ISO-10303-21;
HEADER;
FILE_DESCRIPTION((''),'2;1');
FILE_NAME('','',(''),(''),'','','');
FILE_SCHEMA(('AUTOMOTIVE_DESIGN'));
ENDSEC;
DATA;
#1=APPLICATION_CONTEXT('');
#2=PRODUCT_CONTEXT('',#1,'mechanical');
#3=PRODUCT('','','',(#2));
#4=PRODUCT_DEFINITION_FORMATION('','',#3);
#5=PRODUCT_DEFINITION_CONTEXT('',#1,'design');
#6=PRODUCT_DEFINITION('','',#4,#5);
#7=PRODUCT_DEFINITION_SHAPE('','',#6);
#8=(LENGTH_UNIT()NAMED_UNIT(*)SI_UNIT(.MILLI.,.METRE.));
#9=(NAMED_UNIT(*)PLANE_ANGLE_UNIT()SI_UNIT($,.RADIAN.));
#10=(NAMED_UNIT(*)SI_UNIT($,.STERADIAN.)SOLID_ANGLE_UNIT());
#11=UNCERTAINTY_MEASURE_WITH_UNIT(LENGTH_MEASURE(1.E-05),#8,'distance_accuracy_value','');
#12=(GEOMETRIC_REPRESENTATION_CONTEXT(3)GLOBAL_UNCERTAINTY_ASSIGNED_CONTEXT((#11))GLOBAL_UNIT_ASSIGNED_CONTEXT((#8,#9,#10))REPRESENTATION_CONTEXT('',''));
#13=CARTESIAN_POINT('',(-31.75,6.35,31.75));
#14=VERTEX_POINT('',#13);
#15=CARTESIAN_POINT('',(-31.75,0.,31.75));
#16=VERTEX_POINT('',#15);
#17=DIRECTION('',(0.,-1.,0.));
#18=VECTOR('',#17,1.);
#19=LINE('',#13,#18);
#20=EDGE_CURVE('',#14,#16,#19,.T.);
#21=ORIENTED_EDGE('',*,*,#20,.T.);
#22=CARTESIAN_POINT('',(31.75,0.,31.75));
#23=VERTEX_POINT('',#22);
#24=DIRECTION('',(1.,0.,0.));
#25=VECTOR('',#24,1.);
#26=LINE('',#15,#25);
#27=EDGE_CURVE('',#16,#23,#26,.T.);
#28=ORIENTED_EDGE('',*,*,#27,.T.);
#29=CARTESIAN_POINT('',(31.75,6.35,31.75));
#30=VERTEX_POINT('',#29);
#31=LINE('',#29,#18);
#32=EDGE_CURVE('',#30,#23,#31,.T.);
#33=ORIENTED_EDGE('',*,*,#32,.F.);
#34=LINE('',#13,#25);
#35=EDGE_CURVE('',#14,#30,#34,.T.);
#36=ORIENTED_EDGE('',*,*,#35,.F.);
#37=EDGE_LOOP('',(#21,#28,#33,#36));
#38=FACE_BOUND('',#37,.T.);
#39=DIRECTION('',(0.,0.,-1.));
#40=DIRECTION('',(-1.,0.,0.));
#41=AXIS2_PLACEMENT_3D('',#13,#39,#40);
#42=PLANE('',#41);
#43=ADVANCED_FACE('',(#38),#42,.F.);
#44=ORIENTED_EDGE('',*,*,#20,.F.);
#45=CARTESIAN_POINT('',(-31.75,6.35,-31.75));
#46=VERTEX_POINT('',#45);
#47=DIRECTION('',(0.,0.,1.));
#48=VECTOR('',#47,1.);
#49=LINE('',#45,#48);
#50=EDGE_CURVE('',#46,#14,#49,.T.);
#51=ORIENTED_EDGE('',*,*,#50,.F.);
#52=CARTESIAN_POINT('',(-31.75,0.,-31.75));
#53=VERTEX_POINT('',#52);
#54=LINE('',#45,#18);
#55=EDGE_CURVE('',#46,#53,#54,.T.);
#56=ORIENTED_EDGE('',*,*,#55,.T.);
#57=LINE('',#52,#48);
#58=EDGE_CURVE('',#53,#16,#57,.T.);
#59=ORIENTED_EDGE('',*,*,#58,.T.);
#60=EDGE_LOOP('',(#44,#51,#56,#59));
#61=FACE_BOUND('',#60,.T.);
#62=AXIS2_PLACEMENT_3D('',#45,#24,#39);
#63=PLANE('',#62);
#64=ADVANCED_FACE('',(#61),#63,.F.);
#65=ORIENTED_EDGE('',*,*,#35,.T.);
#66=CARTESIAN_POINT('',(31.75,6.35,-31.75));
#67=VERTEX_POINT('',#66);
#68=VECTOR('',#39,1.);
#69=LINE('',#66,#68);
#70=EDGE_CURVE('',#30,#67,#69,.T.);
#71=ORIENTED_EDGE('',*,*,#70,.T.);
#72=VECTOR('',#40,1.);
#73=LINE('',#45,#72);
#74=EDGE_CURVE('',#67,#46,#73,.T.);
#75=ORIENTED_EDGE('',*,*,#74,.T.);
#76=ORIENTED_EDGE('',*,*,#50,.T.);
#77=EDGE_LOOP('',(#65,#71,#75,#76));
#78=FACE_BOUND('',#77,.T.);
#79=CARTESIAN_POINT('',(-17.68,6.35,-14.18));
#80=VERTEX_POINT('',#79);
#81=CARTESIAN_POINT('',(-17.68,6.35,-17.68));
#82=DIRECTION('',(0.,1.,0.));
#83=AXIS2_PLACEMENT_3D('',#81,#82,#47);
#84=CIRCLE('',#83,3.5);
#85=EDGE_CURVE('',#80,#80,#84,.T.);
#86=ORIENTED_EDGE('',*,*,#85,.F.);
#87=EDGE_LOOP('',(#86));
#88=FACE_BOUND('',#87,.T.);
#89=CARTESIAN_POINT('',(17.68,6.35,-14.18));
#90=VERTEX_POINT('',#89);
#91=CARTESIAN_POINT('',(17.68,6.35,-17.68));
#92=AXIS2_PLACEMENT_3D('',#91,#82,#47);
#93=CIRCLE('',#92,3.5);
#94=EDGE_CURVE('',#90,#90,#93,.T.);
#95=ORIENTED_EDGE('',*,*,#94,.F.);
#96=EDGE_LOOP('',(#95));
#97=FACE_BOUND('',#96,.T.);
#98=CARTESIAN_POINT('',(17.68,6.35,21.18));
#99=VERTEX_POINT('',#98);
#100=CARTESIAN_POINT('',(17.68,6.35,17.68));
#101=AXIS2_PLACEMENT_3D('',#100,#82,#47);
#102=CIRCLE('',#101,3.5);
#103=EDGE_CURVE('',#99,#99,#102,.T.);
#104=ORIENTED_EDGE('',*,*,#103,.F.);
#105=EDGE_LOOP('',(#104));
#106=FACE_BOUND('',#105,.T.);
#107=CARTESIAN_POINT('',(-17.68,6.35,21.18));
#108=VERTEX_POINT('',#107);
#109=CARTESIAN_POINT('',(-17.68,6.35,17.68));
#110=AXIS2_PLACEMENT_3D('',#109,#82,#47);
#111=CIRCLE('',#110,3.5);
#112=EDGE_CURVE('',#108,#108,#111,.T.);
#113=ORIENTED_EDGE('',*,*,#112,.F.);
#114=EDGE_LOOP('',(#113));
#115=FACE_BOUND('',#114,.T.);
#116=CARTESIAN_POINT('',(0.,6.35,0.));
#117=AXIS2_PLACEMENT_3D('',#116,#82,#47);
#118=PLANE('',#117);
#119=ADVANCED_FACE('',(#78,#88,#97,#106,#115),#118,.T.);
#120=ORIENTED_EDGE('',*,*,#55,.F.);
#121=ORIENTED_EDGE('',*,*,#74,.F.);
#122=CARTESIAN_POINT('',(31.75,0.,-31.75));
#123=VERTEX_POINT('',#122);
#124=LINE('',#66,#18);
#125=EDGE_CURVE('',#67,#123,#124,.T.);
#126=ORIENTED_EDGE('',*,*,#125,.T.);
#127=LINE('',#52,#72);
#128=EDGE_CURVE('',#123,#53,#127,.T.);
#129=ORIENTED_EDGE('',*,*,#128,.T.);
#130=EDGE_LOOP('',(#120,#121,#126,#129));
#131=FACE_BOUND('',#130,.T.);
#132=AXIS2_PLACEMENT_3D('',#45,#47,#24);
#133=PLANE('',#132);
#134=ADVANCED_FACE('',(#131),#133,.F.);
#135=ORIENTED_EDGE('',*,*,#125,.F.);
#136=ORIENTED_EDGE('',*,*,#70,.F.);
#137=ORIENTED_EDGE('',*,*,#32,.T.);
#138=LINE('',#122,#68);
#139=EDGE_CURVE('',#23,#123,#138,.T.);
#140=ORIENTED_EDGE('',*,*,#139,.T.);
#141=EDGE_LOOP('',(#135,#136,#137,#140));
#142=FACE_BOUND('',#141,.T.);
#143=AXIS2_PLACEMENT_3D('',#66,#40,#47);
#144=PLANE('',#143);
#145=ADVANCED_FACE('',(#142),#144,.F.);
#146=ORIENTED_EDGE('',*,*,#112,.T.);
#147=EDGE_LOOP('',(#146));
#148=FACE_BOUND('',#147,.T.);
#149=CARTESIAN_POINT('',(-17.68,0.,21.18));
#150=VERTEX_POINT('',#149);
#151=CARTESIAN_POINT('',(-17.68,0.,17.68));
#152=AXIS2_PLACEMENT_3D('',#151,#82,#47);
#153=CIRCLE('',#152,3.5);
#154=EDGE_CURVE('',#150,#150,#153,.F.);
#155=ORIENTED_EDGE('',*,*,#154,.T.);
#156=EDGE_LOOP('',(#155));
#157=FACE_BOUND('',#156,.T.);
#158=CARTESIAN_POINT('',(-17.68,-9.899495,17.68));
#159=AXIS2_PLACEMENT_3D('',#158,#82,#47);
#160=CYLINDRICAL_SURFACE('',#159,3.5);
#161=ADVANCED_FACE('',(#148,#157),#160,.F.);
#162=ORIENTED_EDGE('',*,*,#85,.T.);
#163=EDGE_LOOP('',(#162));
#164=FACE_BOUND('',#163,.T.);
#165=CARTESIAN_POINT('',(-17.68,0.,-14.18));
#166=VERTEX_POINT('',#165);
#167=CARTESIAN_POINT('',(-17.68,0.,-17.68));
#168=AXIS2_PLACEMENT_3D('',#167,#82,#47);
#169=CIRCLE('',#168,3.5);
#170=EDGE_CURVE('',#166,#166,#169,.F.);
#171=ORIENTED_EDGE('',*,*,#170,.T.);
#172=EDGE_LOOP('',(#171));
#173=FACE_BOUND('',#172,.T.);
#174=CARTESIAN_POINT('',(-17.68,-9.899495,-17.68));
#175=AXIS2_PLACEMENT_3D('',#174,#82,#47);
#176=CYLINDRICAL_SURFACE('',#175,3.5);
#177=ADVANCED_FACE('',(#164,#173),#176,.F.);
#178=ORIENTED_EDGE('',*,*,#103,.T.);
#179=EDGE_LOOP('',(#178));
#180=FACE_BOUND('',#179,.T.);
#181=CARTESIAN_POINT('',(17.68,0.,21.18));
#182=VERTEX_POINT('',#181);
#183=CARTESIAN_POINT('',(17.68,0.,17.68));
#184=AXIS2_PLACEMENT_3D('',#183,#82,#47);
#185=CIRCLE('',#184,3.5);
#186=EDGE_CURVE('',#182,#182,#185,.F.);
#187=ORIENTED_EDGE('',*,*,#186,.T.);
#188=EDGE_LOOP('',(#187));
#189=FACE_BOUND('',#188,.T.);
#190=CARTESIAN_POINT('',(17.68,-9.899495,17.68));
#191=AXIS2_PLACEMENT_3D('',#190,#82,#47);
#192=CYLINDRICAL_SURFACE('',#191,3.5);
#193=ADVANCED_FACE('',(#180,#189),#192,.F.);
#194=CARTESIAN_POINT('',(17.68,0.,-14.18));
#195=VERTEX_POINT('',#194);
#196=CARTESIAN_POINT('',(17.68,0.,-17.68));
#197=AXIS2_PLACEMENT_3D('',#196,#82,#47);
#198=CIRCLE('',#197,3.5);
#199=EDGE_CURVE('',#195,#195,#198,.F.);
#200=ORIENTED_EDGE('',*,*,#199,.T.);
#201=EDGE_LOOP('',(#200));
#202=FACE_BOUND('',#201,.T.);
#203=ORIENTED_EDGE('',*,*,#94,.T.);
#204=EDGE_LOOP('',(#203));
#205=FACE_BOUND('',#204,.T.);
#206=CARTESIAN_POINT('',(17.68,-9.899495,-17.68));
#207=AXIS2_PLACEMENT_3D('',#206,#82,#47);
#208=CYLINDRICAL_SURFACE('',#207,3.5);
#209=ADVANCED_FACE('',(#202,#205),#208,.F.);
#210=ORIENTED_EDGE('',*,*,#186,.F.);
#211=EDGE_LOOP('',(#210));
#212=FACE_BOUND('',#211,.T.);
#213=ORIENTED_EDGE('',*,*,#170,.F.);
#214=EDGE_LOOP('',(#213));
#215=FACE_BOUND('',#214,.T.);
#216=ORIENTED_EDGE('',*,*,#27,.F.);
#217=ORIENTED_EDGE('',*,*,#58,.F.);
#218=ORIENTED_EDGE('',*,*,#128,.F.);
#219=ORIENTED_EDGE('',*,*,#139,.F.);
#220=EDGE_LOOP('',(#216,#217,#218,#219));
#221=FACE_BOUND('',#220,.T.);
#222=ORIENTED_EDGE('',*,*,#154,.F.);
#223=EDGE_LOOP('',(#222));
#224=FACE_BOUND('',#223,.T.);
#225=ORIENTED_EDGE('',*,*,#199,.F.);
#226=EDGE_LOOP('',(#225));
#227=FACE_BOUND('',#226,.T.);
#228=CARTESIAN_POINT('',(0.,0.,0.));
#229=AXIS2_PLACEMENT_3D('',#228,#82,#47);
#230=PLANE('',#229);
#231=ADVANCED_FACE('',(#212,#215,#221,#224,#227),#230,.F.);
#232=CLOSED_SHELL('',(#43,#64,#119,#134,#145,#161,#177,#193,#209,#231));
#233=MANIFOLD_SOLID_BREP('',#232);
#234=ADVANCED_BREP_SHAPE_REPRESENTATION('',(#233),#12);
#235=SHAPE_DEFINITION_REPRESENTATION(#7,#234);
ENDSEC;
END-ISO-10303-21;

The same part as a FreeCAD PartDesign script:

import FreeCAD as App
import Part
import Sketcher
from FreeCAD import Vector
Q = App.Units.Quantity

doc = App.newDocument("Part")
body = doc.addObject("PartDesign::Body", "Body")

# Sketch on XZ plane
sketch1 = body.newObject("Sketcher::SketchObject", "Sketch")
sketch1.AttachmentSupport = (doc.getObject("XZ_Plane"), [""])
sketch1.MapMode = "FlatFace"
sketch1.addGeometry([
    Part.LineSegment(Vector(-32, -32, 0), Vector(-32, 32, 0)),
    Part.LineSegment(Vector(-32, 32, 0), Vector(32, 32, 0)),
    Part.LineSegment(Vector(32, 32, 0), Vector(32, -32, 0)),
    Part.LineSegment(Vector(32, -32, 0), Vector(-32, -32, 0)),
], False)
sketch1.addConstraint([
    Sketcher.Constraint("Coincident", 0, 2, 1, 1),
    Sketcher.Constraint("Coincident", 1, 2, 2, 1),
    Sketcher.Constraint("Coincident", 2, 2, 3, 1),
    Sketcher.Constraint("Coincident", 3, 2, 0, 1),
    Sketcher.Constraint("Vertical", 0),
    Sketcher.Constraint("Horizontal", 1),
    Sketcher.Constraint("Vertical", 2),
    Sketcher.Constraint("Horizontal", 3),
    Sketcher.Constraint("Symmetric", 0, 2, 2, 2, -1, 1),
    Sketcher.Constraint("Equal", 3, 0),
    Sketcher.Constraint("DistanceX", 1, 1, 1, 2, Q("2.5 in")),
])
pad1 = body.newObject("PartDesign::Pad", "Pad")
pad1.Profile = sketch1
pad1.Length = Q("0.25 in")
pad1.Reversed = True

# Sketch on XZ plane
sketch2 = body.newObject("Sketcher::SketchObject", "Sketch001")
sketch2.AttachmentSupport = (doc.getObject("XZ_Plane"), [""])
sketch2.MapMode = "FlatFace"
sketch2.AttachmentOffset = App.Placement(Vector(0, 0, -0.25 * 25.4), App.Rotation())
sketch2.addGeometry([
    Part.Circle(Vector(-17.7, -17.7, 0), Vector(0, 0, 1), 3.5),
    Part.Circle(Vector(17.7, -17.7, 0), Vector(0, 0, 1), 3.5),
    Part.Circle(Vector(17.7, 17.7, 0), Vector(0, 0, 1), 3.5),
    Part.Circle(Vector(-17.7, 17.7, 0), Vector(0, 0, 1), 3.5),
], False)
sketch2.addConstraint([
    Sketcher.Constraint("Equal", 0, 1),
    Sketcher.Constraint("Equal", 1, 2),
    Sketcher.Constraint("Equal", 2, 3),
    Sketcher.Constraint("Symmetric", 0, 3, 2, 3, -1, 1),
    Sketcher.Constraint("Symmetric", 1, 3, 3, 3, -1, 1),
    Sketcher.Constraint("Symmetric", 0, 3, 1, 3, -2),
    Sketcher.Constraint("Diameter", 0, 7.0),
    Sketcher.Constraint("DistanceX", 0, 3, -1, 1, 17.68),
    Sketcher.Constraint("DistanceY", 0, 3, -1, 1, 17.68),
])
pocket1 = body.newObject("PartDesign::Pocket", "Pocket")
pocket1.Profile = sketch2
pocket1.Length = Q("0.25 in")
pocket1.Reversed = True

doc.recompute()
